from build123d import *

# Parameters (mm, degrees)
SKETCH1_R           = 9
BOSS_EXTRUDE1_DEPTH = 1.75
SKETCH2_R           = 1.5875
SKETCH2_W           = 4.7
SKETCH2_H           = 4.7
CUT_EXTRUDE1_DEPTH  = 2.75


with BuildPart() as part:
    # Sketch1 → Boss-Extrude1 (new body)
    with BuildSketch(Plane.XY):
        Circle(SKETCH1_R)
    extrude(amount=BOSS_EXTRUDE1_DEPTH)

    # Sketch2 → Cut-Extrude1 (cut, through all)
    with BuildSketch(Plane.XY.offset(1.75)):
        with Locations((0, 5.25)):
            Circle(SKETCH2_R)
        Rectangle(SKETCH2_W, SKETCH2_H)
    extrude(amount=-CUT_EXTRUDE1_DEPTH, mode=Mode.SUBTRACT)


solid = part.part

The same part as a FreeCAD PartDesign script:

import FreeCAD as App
import Part
import Sketcher

V = App.Vector
Q = App.Units.Quantity

doc = App.newDocument("Part")
body = doc.addObject("PartDesign::Body", "Body")

# Sketch on XY plane
sketch1 = doc.addObject("Sketcher::SketchObject", "Sketch")
body.addObject(sketch1)
sketch1.AttachmentSupport = (doc.XY_Plane, [""])
sketch1.MapMode = "FlatFace"
sketch1.addGeometry(Part.Circle(V(0, 0, 0), V(0, 0, 1), 9), False)
sketch1.addConstraint([
    Sketcher.Constraint("Coincident", 0, 3, -1, 1),
    Sketcher.Constraint("Diameter", 0, Q("18 mm")),
])
pad1 = doc.addObject("PartDesign::Pad", "Pad")
body.addObject(pad1)
pad1.Profile = sketch1
pad1.Length = 1.75

# Sketch on XY plane
sketch2 = doc.addObject("Sketcher::SketchObject", "Sketch001")
body.addObject(sketch2)
sketch2.AttachmentSupport = (doc.XY_Plane, [""])
sketch2.MapMode = "FlatFace"
sketch2.AttachmentOffset = App.Placement(V(0, 0, 1.75), App.Rotation())
sketch2.addGeometry([
    Part.Circle(V(0, 5.2, 0), V(0, 0, 1), 1.6),  # 0
    Part.LineSegment(V(-2.4, 2.4, 0), V(-2.4, -2.4, 0)),  # 1
    Part.LineSegment(V(-2.4, -2.4, 0), V(2.4, -2.4, 0)),  # 2
    Part.LineSegment(V(2.4, -2.4, 0), V(2.4, 2.4, 0)),  # 3
    Part.LineSegment(V(2.4, 2.4, 0), V(-2.4, 2.4, 0)),  # 4
], False)
sketch2.addConstraint([
    Sketcher.Constraint("Coincident", 1, 2, 2, 1),
    Sketcher.Constraint("Coincident", 2, 2, 3, 1),
    Sketcher.Constraint("Coincident", 3, 2, 4, 1),
    Sketcher.Constraint("Coincident", 4, 2, 1, 1),
    Sketcher.Constraint("Vertical", 1),
    Sketcher.Constraint("Horizontal", 2),
    Sketcher.Constraint("Vertical", 3),
    Sketcher.Constraint("Horizontal", 4),
    Sketcher.Constraint("Symmetric", 1, 2, 3, 2, -1, 1),
    Sketcher.Constraint("PointOnObject", 0, 3, -2),
    Sketcher.Constraint("Equal", 4, 1),
    Sketcher.Constraint("Diameter", 0, Q("3.175 mm")),
    Sketcher.Constraint("DistanceX", 2, 1, 2, 2, Q("4.7 mm")),
    Sketcher.Constraint("DistanceY", 1, 2, 0, 3, Q("7.6 mm")),
])
pocket1 = doc.addObject("PartDesign::Pocket", "Pocket")
body.addObject(pocket1)
pocket1.Profile = sketch2
pocket1.Type = "ThroughAll"

doc.recompute()
